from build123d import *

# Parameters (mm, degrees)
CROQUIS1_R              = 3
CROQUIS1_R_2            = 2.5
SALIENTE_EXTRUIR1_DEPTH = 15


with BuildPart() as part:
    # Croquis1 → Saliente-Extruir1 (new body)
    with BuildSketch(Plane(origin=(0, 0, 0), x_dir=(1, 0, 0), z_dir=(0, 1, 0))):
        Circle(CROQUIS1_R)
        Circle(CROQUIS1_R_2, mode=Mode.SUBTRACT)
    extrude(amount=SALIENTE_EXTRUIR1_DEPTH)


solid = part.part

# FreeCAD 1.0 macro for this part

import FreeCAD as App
import Part
import Sketcher
from FreeCAD import Vector

doc = App.newDocument("Part")
body = doc.addObject("PartDesign::Body", "Body")

sketch1 = body.newObject("Sketcher::SketchObject", "Sketch")
sketch1.AttachmentSupport = (doc.getObject("XZ_Plane"), [""])
sketch1.MapMode = "FlatFace"
sketch1.addGeometry([
    Part.Circle(Vector(0, 0, 0), Vector(0, 0, 1), 3),
    Part.Circle(Vector(0, 0, 0), Vector(0, 0, 1), 2.5),
], False)
sketch1.addConstraint([
    Sketcher.Constraint("Coincident", 0, 3, -1, 1),
    Sketcher.Constraint("Coincident", 1, 3, -1, 1),
    Sketcher.Constraint("Diameter", 0, 6.0),
    Sketcher.Constraint("Diameter", 1, 5.0),
])
pad1 = body.newObject("PartDesign::Pad", "Pad")
pad1.Profile = sketch1
pad1.Length = 15
pad1.Reversed = True

doc.recompute()
